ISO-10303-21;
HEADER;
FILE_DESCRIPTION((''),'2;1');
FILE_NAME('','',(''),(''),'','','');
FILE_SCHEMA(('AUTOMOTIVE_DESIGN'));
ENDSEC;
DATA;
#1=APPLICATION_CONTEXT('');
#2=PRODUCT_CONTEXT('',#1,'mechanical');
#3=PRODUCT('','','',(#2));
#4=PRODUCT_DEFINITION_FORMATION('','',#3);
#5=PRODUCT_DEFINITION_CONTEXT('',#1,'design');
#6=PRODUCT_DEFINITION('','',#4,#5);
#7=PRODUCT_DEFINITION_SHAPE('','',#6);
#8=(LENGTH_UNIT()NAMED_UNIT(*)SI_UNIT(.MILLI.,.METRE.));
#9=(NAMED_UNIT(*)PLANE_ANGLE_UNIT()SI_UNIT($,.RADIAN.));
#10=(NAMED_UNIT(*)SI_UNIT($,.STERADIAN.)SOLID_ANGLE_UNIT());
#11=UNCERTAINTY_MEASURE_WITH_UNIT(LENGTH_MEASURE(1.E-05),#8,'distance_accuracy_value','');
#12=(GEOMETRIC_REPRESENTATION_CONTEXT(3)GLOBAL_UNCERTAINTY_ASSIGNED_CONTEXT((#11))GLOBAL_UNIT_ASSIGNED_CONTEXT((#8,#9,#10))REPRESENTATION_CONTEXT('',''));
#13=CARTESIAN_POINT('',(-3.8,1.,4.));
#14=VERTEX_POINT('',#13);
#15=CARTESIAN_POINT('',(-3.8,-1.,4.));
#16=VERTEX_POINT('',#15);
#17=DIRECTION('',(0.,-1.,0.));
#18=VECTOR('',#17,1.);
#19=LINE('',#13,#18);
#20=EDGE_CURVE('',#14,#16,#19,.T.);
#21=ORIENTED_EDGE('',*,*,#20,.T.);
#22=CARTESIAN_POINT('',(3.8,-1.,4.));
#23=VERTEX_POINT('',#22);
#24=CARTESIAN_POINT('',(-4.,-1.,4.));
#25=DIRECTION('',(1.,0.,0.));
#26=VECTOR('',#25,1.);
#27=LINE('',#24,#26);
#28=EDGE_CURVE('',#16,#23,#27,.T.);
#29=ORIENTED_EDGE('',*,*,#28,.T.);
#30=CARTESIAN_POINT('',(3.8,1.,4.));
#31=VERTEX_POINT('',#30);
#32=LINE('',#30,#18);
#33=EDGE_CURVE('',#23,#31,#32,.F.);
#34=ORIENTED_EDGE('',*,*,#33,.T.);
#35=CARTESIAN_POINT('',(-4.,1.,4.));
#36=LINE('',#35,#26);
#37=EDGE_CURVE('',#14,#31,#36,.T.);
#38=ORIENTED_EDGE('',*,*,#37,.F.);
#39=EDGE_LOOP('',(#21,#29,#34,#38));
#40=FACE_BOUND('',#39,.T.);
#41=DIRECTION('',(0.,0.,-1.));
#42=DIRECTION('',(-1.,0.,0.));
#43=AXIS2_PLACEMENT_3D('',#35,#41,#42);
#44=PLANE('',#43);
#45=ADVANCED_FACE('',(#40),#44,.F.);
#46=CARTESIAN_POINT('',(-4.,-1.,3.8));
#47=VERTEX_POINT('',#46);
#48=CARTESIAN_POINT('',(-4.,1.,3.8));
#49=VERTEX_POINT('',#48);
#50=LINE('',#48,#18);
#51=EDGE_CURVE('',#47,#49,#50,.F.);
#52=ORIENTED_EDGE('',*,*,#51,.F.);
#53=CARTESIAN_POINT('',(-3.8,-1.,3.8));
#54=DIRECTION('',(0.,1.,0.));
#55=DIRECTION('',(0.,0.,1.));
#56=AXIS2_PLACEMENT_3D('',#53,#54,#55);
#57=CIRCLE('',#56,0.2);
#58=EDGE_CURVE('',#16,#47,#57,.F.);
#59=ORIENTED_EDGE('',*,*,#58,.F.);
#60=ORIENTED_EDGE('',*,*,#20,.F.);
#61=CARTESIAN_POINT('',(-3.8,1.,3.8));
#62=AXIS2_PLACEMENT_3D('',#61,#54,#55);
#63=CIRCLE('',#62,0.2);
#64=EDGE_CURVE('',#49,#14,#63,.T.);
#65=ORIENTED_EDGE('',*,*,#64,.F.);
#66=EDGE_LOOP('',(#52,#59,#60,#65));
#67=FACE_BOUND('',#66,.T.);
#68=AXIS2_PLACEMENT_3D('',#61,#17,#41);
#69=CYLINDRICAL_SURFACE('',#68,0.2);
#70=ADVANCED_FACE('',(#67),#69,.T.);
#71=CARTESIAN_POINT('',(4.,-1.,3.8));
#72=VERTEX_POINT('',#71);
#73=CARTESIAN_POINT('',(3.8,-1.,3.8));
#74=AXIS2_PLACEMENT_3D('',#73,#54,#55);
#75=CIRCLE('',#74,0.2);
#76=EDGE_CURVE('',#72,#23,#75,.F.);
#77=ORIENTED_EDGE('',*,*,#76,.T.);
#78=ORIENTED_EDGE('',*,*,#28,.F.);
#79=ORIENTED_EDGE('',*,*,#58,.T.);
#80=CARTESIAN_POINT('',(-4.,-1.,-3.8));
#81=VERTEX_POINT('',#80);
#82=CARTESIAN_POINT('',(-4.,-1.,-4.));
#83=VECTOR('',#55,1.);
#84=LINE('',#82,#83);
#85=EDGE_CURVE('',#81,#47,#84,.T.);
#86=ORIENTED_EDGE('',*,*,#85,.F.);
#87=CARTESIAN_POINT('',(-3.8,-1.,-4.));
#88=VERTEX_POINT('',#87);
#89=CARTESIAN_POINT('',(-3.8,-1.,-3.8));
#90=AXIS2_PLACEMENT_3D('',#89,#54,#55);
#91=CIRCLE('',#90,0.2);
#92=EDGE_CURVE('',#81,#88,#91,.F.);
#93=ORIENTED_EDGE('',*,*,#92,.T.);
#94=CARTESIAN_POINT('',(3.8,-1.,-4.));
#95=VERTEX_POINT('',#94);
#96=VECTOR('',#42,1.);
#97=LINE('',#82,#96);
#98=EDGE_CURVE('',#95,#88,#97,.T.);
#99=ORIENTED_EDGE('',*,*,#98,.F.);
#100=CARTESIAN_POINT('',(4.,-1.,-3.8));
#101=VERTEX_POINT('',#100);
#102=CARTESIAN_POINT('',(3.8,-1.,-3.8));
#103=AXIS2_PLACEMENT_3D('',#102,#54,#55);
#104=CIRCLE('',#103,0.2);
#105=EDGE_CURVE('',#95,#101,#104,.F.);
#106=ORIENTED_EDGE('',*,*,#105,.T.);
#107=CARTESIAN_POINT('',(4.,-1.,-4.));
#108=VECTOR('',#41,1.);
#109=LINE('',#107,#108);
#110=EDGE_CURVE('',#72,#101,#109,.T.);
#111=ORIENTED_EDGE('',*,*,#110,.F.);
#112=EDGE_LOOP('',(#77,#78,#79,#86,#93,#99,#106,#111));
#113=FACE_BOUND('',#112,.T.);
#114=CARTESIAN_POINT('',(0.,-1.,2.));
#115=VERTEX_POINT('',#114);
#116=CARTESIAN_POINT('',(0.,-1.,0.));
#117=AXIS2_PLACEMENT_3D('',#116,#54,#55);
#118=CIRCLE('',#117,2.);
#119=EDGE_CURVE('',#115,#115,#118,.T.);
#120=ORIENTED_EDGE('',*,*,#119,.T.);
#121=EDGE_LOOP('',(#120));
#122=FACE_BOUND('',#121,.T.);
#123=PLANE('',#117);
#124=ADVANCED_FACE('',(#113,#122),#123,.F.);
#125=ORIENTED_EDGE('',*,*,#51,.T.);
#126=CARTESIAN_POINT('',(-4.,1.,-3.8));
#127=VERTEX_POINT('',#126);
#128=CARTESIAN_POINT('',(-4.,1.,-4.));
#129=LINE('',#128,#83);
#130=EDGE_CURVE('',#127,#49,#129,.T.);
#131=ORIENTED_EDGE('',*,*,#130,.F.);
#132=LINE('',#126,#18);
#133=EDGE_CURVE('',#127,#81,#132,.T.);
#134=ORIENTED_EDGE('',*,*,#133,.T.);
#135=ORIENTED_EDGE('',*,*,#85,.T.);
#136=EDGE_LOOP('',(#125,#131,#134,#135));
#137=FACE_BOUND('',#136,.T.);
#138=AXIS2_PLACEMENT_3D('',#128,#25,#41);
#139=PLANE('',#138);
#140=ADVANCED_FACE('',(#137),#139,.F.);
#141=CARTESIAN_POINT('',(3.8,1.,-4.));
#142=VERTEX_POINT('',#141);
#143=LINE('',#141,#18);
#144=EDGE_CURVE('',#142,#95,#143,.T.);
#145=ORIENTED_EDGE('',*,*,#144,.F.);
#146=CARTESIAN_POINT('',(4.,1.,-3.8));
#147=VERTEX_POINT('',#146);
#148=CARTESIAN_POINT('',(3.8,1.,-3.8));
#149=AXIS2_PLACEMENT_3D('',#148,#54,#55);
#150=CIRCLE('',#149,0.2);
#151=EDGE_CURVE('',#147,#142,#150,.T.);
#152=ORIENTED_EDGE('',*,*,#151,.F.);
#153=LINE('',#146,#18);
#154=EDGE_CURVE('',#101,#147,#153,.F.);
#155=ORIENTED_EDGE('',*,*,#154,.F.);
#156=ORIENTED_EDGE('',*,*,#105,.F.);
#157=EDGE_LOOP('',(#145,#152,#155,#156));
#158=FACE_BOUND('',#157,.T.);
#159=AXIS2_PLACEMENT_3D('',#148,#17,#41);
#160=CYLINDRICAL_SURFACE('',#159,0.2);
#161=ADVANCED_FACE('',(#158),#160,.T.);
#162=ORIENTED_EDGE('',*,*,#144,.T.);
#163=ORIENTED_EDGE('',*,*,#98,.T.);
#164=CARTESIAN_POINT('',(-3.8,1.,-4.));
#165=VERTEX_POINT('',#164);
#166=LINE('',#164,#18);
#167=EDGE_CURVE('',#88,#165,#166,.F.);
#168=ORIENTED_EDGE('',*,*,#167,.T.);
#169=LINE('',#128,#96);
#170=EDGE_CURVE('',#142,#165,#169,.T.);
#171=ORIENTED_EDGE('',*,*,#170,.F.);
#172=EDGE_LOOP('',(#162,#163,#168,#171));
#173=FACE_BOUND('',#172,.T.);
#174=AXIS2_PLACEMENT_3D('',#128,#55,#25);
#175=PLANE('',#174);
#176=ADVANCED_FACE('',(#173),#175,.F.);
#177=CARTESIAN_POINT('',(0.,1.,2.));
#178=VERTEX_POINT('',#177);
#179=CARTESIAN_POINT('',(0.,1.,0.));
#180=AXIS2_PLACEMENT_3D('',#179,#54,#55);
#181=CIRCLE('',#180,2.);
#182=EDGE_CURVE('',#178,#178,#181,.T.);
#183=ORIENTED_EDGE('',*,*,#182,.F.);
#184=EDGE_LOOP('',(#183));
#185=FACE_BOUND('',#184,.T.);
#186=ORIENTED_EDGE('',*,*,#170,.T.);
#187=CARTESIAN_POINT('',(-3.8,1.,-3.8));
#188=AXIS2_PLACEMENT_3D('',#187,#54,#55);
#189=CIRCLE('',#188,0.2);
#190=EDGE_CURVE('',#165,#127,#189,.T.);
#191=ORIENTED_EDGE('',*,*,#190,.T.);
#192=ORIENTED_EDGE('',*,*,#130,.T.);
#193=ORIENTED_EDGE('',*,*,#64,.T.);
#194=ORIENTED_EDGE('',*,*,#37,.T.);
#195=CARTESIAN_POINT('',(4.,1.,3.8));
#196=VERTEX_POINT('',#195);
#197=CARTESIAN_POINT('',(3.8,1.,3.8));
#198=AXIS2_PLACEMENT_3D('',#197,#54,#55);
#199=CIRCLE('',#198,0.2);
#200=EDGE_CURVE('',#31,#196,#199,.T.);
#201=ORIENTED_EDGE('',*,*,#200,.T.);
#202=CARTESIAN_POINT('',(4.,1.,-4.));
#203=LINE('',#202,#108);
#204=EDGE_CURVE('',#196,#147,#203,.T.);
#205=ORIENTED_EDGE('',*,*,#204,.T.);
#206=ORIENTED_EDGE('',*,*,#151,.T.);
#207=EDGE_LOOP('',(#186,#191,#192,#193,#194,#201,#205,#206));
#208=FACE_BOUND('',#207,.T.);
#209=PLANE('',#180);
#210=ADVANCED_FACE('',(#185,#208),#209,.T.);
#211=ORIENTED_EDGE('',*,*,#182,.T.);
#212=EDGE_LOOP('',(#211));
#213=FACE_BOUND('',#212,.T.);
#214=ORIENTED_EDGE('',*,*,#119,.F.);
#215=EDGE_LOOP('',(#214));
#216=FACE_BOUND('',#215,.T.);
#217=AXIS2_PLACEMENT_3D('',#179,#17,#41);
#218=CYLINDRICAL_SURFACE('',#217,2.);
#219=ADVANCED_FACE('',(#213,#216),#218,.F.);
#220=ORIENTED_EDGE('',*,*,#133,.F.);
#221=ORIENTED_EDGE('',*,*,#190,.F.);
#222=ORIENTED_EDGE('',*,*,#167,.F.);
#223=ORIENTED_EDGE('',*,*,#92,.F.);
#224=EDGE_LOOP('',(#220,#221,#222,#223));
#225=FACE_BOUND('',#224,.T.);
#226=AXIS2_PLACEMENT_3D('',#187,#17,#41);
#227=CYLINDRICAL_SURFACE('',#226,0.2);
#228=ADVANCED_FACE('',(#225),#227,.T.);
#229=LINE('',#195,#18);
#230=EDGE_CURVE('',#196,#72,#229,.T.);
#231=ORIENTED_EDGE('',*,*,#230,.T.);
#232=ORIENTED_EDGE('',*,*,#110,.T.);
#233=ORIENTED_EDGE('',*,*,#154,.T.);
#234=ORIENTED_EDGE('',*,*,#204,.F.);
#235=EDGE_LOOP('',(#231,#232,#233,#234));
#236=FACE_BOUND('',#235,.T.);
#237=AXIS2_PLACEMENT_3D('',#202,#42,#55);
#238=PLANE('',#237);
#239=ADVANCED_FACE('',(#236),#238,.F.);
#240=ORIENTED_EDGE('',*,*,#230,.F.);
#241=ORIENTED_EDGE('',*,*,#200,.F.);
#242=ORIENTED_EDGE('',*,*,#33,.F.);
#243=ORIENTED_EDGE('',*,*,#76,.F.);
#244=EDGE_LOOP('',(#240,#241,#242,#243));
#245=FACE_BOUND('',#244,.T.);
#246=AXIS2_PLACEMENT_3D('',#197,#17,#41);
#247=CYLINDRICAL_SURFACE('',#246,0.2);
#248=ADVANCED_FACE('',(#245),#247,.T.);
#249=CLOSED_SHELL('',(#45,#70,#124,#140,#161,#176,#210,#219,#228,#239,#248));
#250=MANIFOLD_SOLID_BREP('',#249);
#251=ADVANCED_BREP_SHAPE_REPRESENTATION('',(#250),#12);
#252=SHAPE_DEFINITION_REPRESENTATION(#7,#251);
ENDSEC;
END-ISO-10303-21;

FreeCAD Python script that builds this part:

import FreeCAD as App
import Part
import Sketcher
from FreeCAD import Vector
Q = App.Units.Quantity


def edges_at(feature, points):
    """Names of the edges that pass closest to the given points."""
    edges = feature.Shape.Edges
    near = lambda p: min(range(len(edges)), key=lambda i: edges[i].distToShape(Part.Vertex(*p))[0])
    return sorted({f"Edge{near(p) + 1}" for p in points})

doc = App.newDocument("Part")
body = doc.addObject("PartDesign::Body", "Body")

# Sketch on XZ plane
sketch1 = body.newObject("Sketcher::SketchObject", "Sketch")
sketch1.AttachmentSupport = (doc.getObject("XZ_Plane"), [""])
sketch1.MapMode = "FlatFace"
sketch1.addGeometry(Part.LineSegment(Vector(-4, -4, 0), Vector(-4, 4, 0)), False)
sketch1.addGeometry(Part.LineSegment(Vector(-4, 4, 0), Vector(4, 4, 0)), False)
sketch1.addGeometry(Part.LineSegment(Vector(4, 4, 0), Vector(4, -4, 0)), False)
sketch1.addGeometry(Part.LineSegment(Vector(4, -4, 0), Vector(-4, -4, 0)), False)
sketch1.addGeometry(Part.Circle(Vector(0, 0, 0), Vector(0, 0, 1), 2), False)
sketch1.addConstraint(Sketcher.Constraint("Coincident", 0, 2, 1, 1))
sketch1.addConstraint(Sketcher.Constraint("Coincident", 1, 2, 2, 1))
sketch1.addConstraint(Sketcher.Constraint("Coincident", 2, 2, 3, 1))
sketch1.addConstraint(Sketcher.Constraint("Coincident", 3, 2, 0, 1))
sketch1.addConstraint(Sketcher.Constraint("Vertical", 0))
sketch1.addConstraint(Sketcher.Constraint("Horizontal", 1))
sketch1.addConstraint(Sketcher.Constraint("Vertical", 2))
sketch1.addConstraint(Sketcher.Constraint("Horizontal", 3))
sketch1.addConstraint(Sketcher.Constraint("Coincident", 4, 3, -1, 1))
sketch1.addConstraint(Sketcher.Constraint("Symmetric", 0, 2, 2, 2, -1, 1))
sketch1.addConstraint(Sketcher.Constraint("Equal", 3, 0))
sketch1.addConstraint(Sketcher.Constraint("Diameter", 4, Q("4 mm")))
sketch1.addConstraint(Sketcher.Constraint("DistanceX", 1, 1, 1, 2, Q("8 mm")))
pad1 = body.newObject("PartDesign::Pad", "Pad")
pad1.Profile = sketch1
pad1.Length = 2
pad1.Midplane = True
doc.recompute()

fillet = body.newObject("PartDesign::Fillet", "Fillet")
fillet.Base = (pad1, edges_at(pad1, [
    (4, 0, 4),
    (-4, 0, 4),
    (-4, 0, -4),
    (4, 0, -4),
]))
fillet.Radius = 0.2

doc.recompute()
